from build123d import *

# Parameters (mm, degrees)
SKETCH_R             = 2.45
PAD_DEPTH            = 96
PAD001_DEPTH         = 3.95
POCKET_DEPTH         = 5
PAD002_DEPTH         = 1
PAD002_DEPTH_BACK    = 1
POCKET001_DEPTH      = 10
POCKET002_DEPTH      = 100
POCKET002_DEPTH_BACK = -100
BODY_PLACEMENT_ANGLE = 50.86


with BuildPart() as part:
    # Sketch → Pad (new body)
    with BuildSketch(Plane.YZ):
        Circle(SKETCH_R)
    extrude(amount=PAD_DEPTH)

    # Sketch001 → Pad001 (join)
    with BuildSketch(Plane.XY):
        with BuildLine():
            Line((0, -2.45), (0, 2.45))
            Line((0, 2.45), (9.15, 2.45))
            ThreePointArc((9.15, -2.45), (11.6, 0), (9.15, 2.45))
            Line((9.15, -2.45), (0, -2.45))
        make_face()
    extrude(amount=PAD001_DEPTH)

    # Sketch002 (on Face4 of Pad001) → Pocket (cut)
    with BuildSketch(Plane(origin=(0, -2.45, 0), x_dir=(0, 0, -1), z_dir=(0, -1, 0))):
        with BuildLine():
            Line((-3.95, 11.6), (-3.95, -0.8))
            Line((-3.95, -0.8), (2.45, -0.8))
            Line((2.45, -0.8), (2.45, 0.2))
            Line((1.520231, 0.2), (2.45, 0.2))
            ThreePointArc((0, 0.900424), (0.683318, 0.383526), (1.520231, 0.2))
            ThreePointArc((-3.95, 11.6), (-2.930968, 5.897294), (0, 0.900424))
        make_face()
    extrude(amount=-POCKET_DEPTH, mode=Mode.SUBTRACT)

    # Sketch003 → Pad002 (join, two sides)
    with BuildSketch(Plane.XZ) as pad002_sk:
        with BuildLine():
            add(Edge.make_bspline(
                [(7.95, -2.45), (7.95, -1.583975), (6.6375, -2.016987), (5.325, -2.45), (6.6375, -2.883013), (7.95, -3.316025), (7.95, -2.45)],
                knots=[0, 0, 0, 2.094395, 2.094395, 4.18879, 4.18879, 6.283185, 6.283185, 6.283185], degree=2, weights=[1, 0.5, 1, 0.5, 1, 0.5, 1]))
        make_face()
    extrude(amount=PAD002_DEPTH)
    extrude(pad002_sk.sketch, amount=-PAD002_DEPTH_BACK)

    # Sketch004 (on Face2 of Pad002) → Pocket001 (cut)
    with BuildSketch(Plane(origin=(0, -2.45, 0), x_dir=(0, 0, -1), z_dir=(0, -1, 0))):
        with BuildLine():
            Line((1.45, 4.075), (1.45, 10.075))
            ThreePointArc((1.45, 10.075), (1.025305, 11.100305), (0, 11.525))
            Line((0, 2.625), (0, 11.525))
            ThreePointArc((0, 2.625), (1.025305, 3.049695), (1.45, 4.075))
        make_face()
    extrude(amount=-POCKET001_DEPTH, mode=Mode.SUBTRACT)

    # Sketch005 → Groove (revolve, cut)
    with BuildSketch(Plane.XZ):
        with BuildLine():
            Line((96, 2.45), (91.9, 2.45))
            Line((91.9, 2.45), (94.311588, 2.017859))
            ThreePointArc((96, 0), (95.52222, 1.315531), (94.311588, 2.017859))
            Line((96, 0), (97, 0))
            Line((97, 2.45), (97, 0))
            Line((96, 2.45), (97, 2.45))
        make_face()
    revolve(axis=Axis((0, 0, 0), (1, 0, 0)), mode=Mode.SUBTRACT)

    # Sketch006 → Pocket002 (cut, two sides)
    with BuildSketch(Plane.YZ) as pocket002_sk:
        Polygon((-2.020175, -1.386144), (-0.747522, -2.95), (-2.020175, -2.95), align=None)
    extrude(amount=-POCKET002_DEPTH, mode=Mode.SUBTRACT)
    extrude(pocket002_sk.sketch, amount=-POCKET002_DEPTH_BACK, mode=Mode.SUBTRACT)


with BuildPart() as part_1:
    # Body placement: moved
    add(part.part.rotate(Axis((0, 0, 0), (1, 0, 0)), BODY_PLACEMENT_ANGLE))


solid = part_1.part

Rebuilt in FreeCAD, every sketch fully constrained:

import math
import FreeCAD as App
import Part
import Sketcher

V = App.Vector
Q = App.Units.Quantity


def add_polygon(sketch, points):
    """Adds a closed chain of lines whose ends are joined by coincident constraints."""
    first, n = sketch.GeometryCount, len(points)
    for a, b in zip(points, points[1:] + points[:1]):
        sketch.addGeometry(Part.LineSegment(App.Vector(*a, 0), App.Vector(*b, 0)), False)
    for i in range(n):
        sketch.addConstraint(Sketcher.Constraint("Coincident", first + i, 2, first + (i + 1) % n, 1))

doc = App.newDocument("Part")
params = doc.addObject("Spreadsheet::Sheet", "Params")
for row, (alias, value) in enumerate([
    ("sketch1_diameter", "4.9 mm"),
    ("pad1_length", "96 mm"),
    ("sketch2_radius", "2.45 mm"),
    ("sketch2_width", "9.15 mm"),
    ("pad2_length", "3.95 mm"),
    ("sketch3_width", "1 mm"),
    ("sketch3_width2", "12.4 mm"),
    ("sketch3_height", "6.4 mm"),
    ("pocket1_length", "5 mm"),
    ("pad3_length", "1 mm"),
    ("pad3_length2", "1 mm"),
    ("sketch5_width", "6 mm"),
    ("sketch5_radius", "1.449999 mm"),
    ("pocket2_length", "10 mm"),
    ("sketch6_width", "1 mm"),
    ("sketch6_width2", "5.1 mm"),
    ("sketch6_height", "2.45 mm"),
    ("sketch6_length", "2.450001 mm"),
    ("groove_angle", "360 deg"),
], start=1):
    params.set(f"A{row}", alias)
    params.set(f"B{row}", "=" + value)
    params.setAlias(f"B{row}", alias)

body = doc.addObject("PartDesign::Body", "Body")

sketch1 = doc.addObject("Sketcher::SketchObject", "Sketch")
body.addObject(sketch1)
sketch1.AttachmentSupport = (doc.YZ_Plane, [""])
sketch1.MapMode = "FlatFace"
sketch1.addGeometry(Part.Circle(V(0, 0, 0), V(0, 0, 1), 2.5), False)
sketch1.addConstraint([
    Sketcher.Constraint("Coincident", 0, 3, -1, 1),
    Sketcher.Constraint("Diameter", 0, Q("4.9 mm")),
])
sketch1.setExpression("Constraints[1]", "Params.sketch1_diameter")
pad1 = doc.addObject("PartDesign::Pad", "Pad")
body.addObject(pad1)
pad1.Profile = sketch1
pad1.setExpression("Length", "Params.pad1_length")

sketch2 = doc.addObject("Sketcher::SketchObject", "Sketch001")
body.addObject(sketch2)
sketch2.AttachmentSupport = (doc.XY_Plane, [""])
sketch2.MapMode = "FlatFace"
sketch2.addGeometry([
    Part.LineSegment(V(0, 2.5, 0), V(0, -2.5, 0)),
    Part.LineSegment(V(0, -2.5, 0), V(9.2, -2.5, 0)),
    Part.ArcOfCircle(Part.Circle(V(9.2, 0, 0), V(0, 0, 1), 2.5), math.radians(-90), math.radians(90)),
    Part.LineSegment(V(9.2, 2.5, 0), V(0, 2.5, 0)),
], False)
sketch2.addConstraint([
    Sketcher.Constraint("Coincident", 0, 2, 1, 1),
    Sketcher.Constraint("Tangent", 1, 2, 2, 1),
    Sketcher.Constraint("Tangent", 2, 2, 3, 1),
    Sketcher.Constraint("Coincident", 3, 2, 0, 1),
    Sketcher.Constraint("Vertical", 0),
    Sketcher.Constraint("Horizontal", 1),
    Sketcher.Constraint("Horizontal", 3),
    Sketcher.Constraint("Symmetric", 0, 2, 3, 2, -1, 1),
    Sketcher.Constraint("Radius", 2, Q("2.45 mm")),
    Sketcher.Constraint("DistanceX", 1, 1, 1, 2, Q("9.15 mm")),
])
sketch2.setExpression("Constraints[8]", "Params.sketch2_radius")
sketch2.setExpression("Constraints[9]", "Params.sketch2_width")
pad2 = doc.addObject("PartDesign::Pad", "Pad001")
body.addObject(pad2)
pad2.Profile = sketch2
pad2.setExpression("Length", "Params.pad2_length")

sketch3 = doc.addObject("Sketcher::SketchObject", "Sketch002")
body.addObject(sketch3)
sketch3.AttachmentSupport = (doc.XZ_Plane, [""])
sketch3.MapMode = "FlatFace"
sketch3.AttachmentOffset = App.Placement(V(0, 0, 2.45), App.Rotation())
sketch3.addGeometry([
    Part.LineSegment(V(11.6, 4, 0), V(-0.8, 4, 0)),
    Part.LineSegment(V(-0.8, 4, 0), V(-0.8, -2.5, 0)),
    Part.LineSegment(V(-0.8, -2.5, 0), V(0.2, -2.5, 0)),
    Part.LineSegment(V(0.2, -2.5, 0), V(0.2, -1.5, 0)),
    Part.ArcOfCircle(Part.Circle(V(2.2, -1.5, 0), V(0, 0, 1), 2), math.radians(131), math.radians(180)),
    Part.ArcOfCircle(Part.Circle(V(11.6, -12.5, 0), V(0, 0, 1), 16.5), math.radians(90), math.radians(131)),
], False)
sketch3.addConstraint([
    Sketcher.Constraint("Coincident", 0, 2, 1, 1),
    Sketcher.Constraint("Coincident", 1, 2, 2, 1),
    Sketcher.Constraint("Coincident", 2, 2, 3, 1),
    Sketcher.Constraint("Tangent", 3, 2, 4, 2),
    Sketcher.Constraint("Tangent", 4, 1, 5, 2),
    Sketcher.Constraint("Tangent", 5, 1, 0, 1),
    Sketcher.Constraint("Horizontal", 0),
    Sketcher.Constraint("Vertical", 1),
    Sketcher.Constraint("Horizontal", 2),
    Sketcher.Constraint("Vertical", 3),
    Sketcher.Constraint("PointOnObject", 4, 1, -1),
    Sketcher.Constraint("DistanceX", 2, 1, 2, 2, Q("1 mm")),
    Sketcher.Constraint("DistanceX", 0, 2, 0, 1, Q("12.4 mm")),
    Sketcher.Constraint("DistanceY", 1, 2, 1, 1, Q("6.4 mm")),
    Sketcher.Constraint("DistanceX", -1, 1, 5, 3, Q("11.6 mm")),
    Sketcher.Constraint("DistanceY", -1, 1, 0, 2, Q("3.95 mm")),
    Sketcher.Constraint("Radius", 4, Q("1.999997 mm")),
])
sketch3.setExpression("Constraints[11]", "Params.sketch3_width")
sketch3.setExpression("Constraints[12]", "Params.sketch3_width2")
sketch3.setExpression("Constraints[13]", "Params.sketch3_height")
pocket1 = doc.addObject("PartDesign::Pocket", "Pocket")
body.addObject(pocket1)
pocket1.Profile = sketch3
pocket1.setExpression("Length", "Params.pocket1_length")

sketch4 = doc.addObject("Sketcher::SketchObject", "Sketch003")
body.addObject(sketch4)
sketch4.AttachmentSupport = (doc.XZ_Plane, [""])
sketch4.MapMode = "FlatFace"
sketch4.addGeometry(Part.BSplineCurve([V(7.95, -2.45, 0), V(7.95, -1.583975, 0), V(6.6375, -2.016987, 0), V(5.325, -2.45, 0), V(6.6375, -2.883013, 0), V(7.95, -3.316025, 0), V(7.95, -2.45, 0)], [3, 2, 2, 3], [0, 2.094395, 4.18879, 6.283185], False, 2, [1, 0.5, 1, 0.5, 1, 0.5, 1], False), False)
sketch4.addConstraint(Sketcher.Constraint("Block", 0))
pad3 = doc.addObject("PartDesign::Pad", "Pad002")
body.addObject(pad3)
pad3.Profile = sketch4
pad3.Type = "TwoLengths"
pad3.setExpression("Length", "Params.pad3_length")
pad3.setExpression("Length2", "Params.pad3_length2")

sketch5 = doc.addObject("Sketcher::SketchObject", "Sketch004")
body.addObject(sketch5)
sketch5.AttachmentSupport = (doc.XZ_Plane, [""])
sketch5.MapMode = "FlatFace"
sketch5.AttachmentOffset = App.Placement(V(0, 0, 2.45), App.Rotation())
sketch5.addGeometry([
    Part.LineSegment(V(4.1, -1.4, 0), V(10.1, -1.4, 0)),
    Part.ArcOfCircle(Part.Circle(V(10.1, 0, 0), V(0, 0, 1), 1.4), math.radians(-90), math.radians(0)),
    Part.LineSegment(V(11.5, 0, 0), V(2.6, 0, 0)),
    Part.ArcOfCircle(Part.Circle(V(4.1, 0, 0), V(0, 0, 1), 1.4), math.radians(180), math.radians(270)),
], False)
sketch5.addConstraint([
    Sketcher.Constraint("Tangent", 0, 2, 1, 1),
    Sketcher.Constraint("Coincident", 1, 2, 2, 1),
    Sketcher.Constraint("Coincident", 2, 2, 3, 1),
    Sketcher.Constraint("Tangent", 3, 2, 0, 1),
    Sketcher.Constraint("Horizontal", 0),
    Sketcher.Constraint("Horizontal", 2),
    Sketcher.Constraint("Equal", 1, 3),
    Sketcher.Constraint("PointOnObject", 1, 3, -1),
    Sketcher.Constraint("PointOnObject", 1, 2, -1),
    Sketcher.Constraint("DistanceX", 0, 1, 0, 2, Q("6 mm")),
    Sketcher.Constraint("Radius", 1, Q("1.449999 mm")),
    Sketcher.Constraint("DistanceX", -1, 1, 1, 3, Q("10.075001 mm")),
])
sketch5.setExpression("Constraints[9]", "Params.sketch5_width")
sketch5.setExpression("Constraints[10]", "Params.sketch5_radius")
pocket2 = doc.addObject("PartDesign::Pocket", "Pocket001")
body.addObject(pocket2)
pocket2.Profile = sketch5
pocket2.setExpression("Length", "Params.pocket2_length")

sketch6 = doc.addObject("Sketcher::SketchObject", "Sketch005")
body.addObject(sketch6)
sketch6.AttachmentSupport = (doc.XZ_Plane, [""])
sketch6.MapMode = "FlatFace"
sketch6.addGeometry([
    Part.LineSegment(V(91.9, 2.5, 0), V(94.3, 2, 0)),
    Part.ArcOfCircle(Part.Circle(V(93.9, 0, 0), V(0, 0, 1), 2.1), math.radians(0), math.radians(80)),
    Part.LineSegment(V(96, 0, 0), V(97, 0, 0)),
    Part.LineSegment(V(97, 0, 0), V(97, 2.5, 0)),
    Part.LineSegment(V(97, 2.5, 0), V(91.9, 2.5, 0)),
], False)
sketch6.addConstraint([
    Sketcher.Constraint("Tangent", 0, 2, 1, 2),
    Sketcher.Constraint("Coincident", 1, 1, 2, 1),
    Sketcher.Constraint("Coincident", 2, 2, 3, 1),
    Sketcher.Constraint("Coincident", 3, 2, 4, 1),
    Sketcher.Constraint("Coincident", 4, 2, 0, 1),
    Sketcher.Constraint("Horizontal", 2),
    Sketcher.Constraint("Vertical", 3),
    Sketcher.Constraint("Horizontal", 4),
    Sketcher.Constraint("PointOnObject", 1, 3, -1),
    Sketcher.Constraint("PointOnObject", 1, 1, -1),
    Sketcher.Constraint("DistanceX", 2, 1, 2, 2, Q("1 mm")),
    Sketcher.Constraint("DistanceX", 4, 2, 4, 1, Q("5.1 mm")),
    Sketcher.Constraint("DistanceX", -1, 1, 1, 1, Q("96 mm")),
    Sketcher.Constraint("DistanceY", 3, 1, 3, 2, Q("2.45 mm")),
    Sketcher.Constraint("Distance", 0, Q("2.450001 mm")),
])
sketch6.setExpression("Constraints[10]", "Params.sketch6_width")
sketch6.setExpression("Constraints[11]", "Params.sketch6_width2")
sketch6.setExpression("Constraints[13]", "Params.sketch6_height")
sketch6.setExpression("Constraints[14]", "Params.sketch6_length")
groove = doc.addObject("PartDesign::Groove", "Groove")
body.addObject(groove)
groove.Profile = sketch6
groove.ReferenceAxis = (sketch6, ["H_Axis"])
groove.setExpression("Angle", "Params.groove_angle")

sketch7 = doc.addObject("Sketcher::SketchObject", "Sketch006")
body.addObject(sketch7)
sketch7.AttachmentSupport = (doc.YZ_Plane, [""])
sketch7.MapMode = "FlatFace"
add_polygon(sketch7, [(-0.7, -3), (-2, -1.4), (-2, -3)])
sketch7.addConstraint([
    Sketcher.Constraint("Vertical", 1),
    Sketcher.Constraint("Horizontal", 2),
    Sketcher.Constraint("DistanceY", 1, 2, -1, 1, Q("2.95 mm")),
    Sketcher.Constraint("DistanceX", 2, 1, 2, 2, Q("1.272653 mm")),
    Sketcher.Constraint("DistanceY", 1, 2, 1, 1, Q("1.563856 mm")),
    Sketcher.Constraint("DistanceX", 0, 2, -1, 1, Q("2.020175 mm")),
])
pocket3 = doc.addObject("PartDesign::Pocket", "Pocket002")
body.addObject(pocket3)
pocket3.Profile = sketch7
pocket3.Type = "ThroughAll"
pocket3.Midplane = True
body2 = doc.addObject("PartDesign::Body", "Body001")
doc.recompute()

body.Placement = App.Placement(V(0, 0, 0), App.Rotation(V(1, 0, 0), 50.86))
boolean = doc.addObject("PartDesign::Boolean", "Boolean")
body2.addObject(boolean)
boolean.Type = "Fuse"
boolean.addObjects([body])

doc.recompute()
